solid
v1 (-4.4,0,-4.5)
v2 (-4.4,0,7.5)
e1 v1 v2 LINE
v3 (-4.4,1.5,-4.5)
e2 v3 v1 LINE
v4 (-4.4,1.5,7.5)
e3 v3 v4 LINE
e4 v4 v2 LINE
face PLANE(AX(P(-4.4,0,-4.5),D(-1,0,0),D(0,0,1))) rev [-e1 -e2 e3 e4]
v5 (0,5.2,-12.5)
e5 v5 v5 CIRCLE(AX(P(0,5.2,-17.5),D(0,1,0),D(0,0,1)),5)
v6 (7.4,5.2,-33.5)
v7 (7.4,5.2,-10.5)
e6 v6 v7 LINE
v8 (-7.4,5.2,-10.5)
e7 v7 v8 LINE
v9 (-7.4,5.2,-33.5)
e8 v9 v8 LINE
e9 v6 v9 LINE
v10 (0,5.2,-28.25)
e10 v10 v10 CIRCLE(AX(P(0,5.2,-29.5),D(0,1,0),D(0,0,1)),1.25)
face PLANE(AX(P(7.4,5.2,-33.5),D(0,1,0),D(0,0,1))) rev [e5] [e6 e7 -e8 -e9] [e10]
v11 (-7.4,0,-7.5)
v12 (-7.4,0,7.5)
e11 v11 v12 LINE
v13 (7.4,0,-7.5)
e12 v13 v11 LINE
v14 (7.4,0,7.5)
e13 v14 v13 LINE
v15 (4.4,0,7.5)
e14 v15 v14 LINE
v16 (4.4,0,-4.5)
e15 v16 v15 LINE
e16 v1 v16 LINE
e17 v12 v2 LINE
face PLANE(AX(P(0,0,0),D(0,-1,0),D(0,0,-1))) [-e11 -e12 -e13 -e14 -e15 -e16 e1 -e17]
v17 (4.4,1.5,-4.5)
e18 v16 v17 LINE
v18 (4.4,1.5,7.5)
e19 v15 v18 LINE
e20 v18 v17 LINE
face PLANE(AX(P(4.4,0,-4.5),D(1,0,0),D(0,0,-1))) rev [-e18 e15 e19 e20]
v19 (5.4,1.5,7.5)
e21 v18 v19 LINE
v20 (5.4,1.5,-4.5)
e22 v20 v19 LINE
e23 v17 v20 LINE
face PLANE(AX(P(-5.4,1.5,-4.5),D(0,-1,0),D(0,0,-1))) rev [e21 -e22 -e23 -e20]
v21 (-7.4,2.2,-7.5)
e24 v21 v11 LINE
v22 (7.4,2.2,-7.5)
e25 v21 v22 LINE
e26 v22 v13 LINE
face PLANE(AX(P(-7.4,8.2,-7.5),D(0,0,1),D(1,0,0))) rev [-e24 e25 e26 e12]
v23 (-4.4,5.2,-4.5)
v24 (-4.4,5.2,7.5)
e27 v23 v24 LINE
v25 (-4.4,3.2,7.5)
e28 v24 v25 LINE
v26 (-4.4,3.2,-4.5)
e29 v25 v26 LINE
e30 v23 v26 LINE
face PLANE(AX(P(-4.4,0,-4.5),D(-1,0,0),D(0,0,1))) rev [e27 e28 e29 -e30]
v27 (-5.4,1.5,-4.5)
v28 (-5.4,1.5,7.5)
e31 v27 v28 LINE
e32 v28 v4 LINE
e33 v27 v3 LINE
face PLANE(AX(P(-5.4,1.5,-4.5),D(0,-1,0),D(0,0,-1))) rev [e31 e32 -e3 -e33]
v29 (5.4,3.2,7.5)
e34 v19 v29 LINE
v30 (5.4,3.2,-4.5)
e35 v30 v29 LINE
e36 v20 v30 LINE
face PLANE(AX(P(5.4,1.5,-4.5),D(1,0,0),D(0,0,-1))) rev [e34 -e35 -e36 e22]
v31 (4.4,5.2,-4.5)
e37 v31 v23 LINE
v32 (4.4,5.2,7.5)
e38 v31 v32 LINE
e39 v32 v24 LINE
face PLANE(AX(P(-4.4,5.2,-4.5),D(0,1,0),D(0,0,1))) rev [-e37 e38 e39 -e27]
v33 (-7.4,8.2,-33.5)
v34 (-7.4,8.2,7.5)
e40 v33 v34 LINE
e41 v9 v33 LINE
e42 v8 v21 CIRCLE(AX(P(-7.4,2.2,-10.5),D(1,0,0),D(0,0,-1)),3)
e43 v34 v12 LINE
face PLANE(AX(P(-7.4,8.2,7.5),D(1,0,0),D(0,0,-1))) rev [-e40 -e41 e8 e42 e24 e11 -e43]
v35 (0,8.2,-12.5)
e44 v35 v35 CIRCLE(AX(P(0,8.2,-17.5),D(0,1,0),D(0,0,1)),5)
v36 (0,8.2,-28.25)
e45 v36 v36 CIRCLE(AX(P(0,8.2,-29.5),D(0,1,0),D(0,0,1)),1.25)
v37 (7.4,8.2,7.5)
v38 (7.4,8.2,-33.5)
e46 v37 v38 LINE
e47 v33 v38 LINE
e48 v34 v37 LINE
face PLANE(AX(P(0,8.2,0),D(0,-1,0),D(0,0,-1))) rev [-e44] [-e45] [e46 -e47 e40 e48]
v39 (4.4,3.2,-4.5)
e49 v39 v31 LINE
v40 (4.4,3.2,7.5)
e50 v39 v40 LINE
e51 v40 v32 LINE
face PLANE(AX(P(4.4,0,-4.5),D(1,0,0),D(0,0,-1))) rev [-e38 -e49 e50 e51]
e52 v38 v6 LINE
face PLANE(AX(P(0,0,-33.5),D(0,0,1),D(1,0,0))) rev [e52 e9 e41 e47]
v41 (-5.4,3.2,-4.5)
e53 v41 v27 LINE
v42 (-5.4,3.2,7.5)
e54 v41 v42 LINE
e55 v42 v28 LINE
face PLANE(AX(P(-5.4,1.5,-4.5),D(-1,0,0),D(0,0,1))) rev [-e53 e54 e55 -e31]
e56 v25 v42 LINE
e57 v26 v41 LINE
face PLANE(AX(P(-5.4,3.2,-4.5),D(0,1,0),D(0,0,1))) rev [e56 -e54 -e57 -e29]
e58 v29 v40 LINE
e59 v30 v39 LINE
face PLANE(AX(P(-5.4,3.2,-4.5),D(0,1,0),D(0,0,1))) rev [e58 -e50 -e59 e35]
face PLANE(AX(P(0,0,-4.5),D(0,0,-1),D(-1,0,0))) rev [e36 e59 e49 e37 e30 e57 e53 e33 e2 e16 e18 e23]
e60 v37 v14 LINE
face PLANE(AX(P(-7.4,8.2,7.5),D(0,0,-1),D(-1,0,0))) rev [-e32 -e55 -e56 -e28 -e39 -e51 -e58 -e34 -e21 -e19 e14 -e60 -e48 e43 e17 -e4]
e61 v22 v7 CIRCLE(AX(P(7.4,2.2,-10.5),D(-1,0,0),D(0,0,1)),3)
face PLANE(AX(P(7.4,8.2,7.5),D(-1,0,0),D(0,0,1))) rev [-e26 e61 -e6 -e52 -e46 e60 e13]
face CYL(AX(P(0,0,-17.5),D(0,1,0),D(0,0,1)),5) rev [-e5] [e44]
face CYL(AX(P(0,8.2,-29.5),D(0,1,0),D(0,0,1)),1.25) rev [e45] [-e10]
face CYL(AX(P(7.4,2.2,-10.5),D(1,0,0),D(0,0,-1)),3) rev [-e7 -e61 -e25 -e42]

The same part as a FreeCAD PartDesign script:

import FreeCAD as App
import Part
import Sketcher


def edges_at(feature, points):
    """Names of the edges that pass closest to the given points."""
    edges = feature.Shape.Edges
    near = lambda p: min(range(len(edges)), key=lambda i: edges[i].distToShape(Part.Vertex(*p))[0])
    return sorted({f"Edge{near(p) + 1}" for p in points})


def add_polygon(sketch, points):
    """Adds a closed chain of lines whose ends are joined by coincident constraints."""
    first, n = sketch.GeometryCount, len(points)
    for a, b in zip(points, points[1:] + points[:1]):
        sketch.addGeometry(Part.LineSegment(App.Vector(*a, 0), App.Vector(*b, 0)), False)
    for i in range(n):
        sketch.addConstraint(Sketcher.Constraint("Coincident", first + i, 2, first + (i + 1) % n, 1))

doc = App.newDocument("Part")
body = doc.addObject("PartDesign::Body", "Body")

sketch1 = body.newObject("Sketcher::SketchObject", "Sketch")
sketch1.AttachmentSupport = (doc.getObject("XZ_Plane"), [""])
sketch1.MapMode = "FlatFace"
add_polygon(sketch1, [(-7.4, -7.5), (-7.4, 7.5), (7.4, 7.5), (7.4, -7.5)])
sketch1.addConstraint(Sketcher.Constraint("Vertical", 0))
sketch1.addConstraint(Sketcher.Constraint("Horizontal", 1))
sketch1.addConstraint(Sketcher.Constraint("Vertical", 2))
sketch1.addConstraint(Sketcher.Constraint("Horizontal", 3))
sketch1.addConstraint(Sketcher.Constraint("Symmetric", 0, 2, 2, 2, -1, 1))
sketch1.addConstraint(Sketcher.Constraint("DistanceY", 0, 1, 0, 2, 15.0))
sketch1.addConstraint(Sketcher.Constraint("DistanceX", 1, 1, 1, 2, 14.8))
pad1 = body.newObject("PartDesign::Pad", "Pad")
pad1.Profile = sketch1
pad1.Length = 8.2
pad1.Reversed = True

sketch2 = body.newObject("Sketcher::SketchObject", "Sketch001")
sketch2.AttachmentSupport = (doc.getObject("XY_Plane"), [""])
sketch2.MapMode = "FlatFace"
sketch2.AttachmentOffset = App.Placement(App.Vector(0, 0, 7.5), App.Rotation())
add_polygon(sketch2, [(-4.4, 5.2), (-4.4, 0), (4.4, 0), (4.4, 5.2)])
sketch2.addConstraint(Sketcher.Constraint("Vertical", 0))
sketch2.addConstraint(Sketcher.Constraint("Horizontal", 1))
sketch2.addConstraint(Sketcher.Constraint("Vertical", 2))
sketch2.addConstraint(Sketcher.Constraint("Horizontal", 3))
sketch2.addConstraint(Sketcher.Constraint("Symmetric", 0, 2, 1, 2, -1, 1))
sketch2.addConstraint(Sketcher.Constraint("DistanceX", 1, 1, 1, 2, 8.8))
sketch2.addConstraint(Sketcher.Constraint("DistanceY", 0, 2, 0, 1, 5.2))
pocket1 = body.newObject("PartDesign::Pocket", "Pocket")
pocket1.Profile = sketch2
pocket1.Length = 12

sketch3 = body.newObject("Sketcher::SketchObject", "Sketch002")
sketch3.AttachmentSupport = (doc.getObject("XY_Plane"), [""])
sketch3.MapMode = "FlatFace"
sketch3.AttachmentOffset = App.Placement(App.Vector(0, 0, 7.5), App.Rotation())
add_polygon(sketch3, [(-5.4, 3.2), (-5.4, 1.5), (5.4, 1.5), (5.4, 3.2)])
sketch3.addConstraint(Sketcher.Constraint("Vertical", 0))
sketch3.addConstraint(Sketcher.Constraint("Horizontal", 1))
sketch3.addConstraint(Sketcher.Constraint("Vertical", 2))
sketch3.addConstraint(Sketcher.Constraint("Horizontal", 3))
sketch3.addConstraint(Sketcher.Constraint("DistanceX", 1, 1, 1, 2, 10.8))
sketch3.addConstraint(Sketcher.Constraint("DistanceY", 0, 2, 0, 1, 1.7))
sketch3.addConstraint(Sketcher.Constraint("DistanceX", 0, 2, -1, 1, 5.4))
sketch3.addConstraint(Sketcher.Constraint("DistanceY", -1, 1, 0, 2, 1.5))
pocket2 = body.newObject("PartDesign::Pocket", "Pocket001")
pocket2.Profile = sketch3
pocket2.Length = 12

sketch4 = body.newObject("Sketcher::SketchObject", "Sketch003")
sketch4.AttachmentSupport = (doc.getObject("XY_Plane"), [""])
sketch4.MapMode = "FlatFace"
sketch4.AttachmentOffset = App.Placement(App.Vector(0, 0, -7.5), App.Rotation())
add_polygon(sketch4, [(7.4, 8.2), (7.4, 5.2), (-7.4, 5.2), (-7.4, 8.2)])
sketch4.addConstraint(Sketcher.Constraint("Vertical", 0))
sketch4.addConstraint(Sketcher.Constraint("Horizontal", 1))
sketch4.addConstraint(Sketcher.Constraint("Vertical", 2))
sketch4.addConstraint(Sketcher.Constraint("Horizontal", 3))
sketch4.addConstraint(Sketcher.Constraint("DistanceY", 0, 2, 0, 1, 3.0))
sketch4.addConstraint(Sketcher.Constraint("DistanceX", 1, 2, 1, 1, 14.8))
sketch4.addConstraint(Sketcher.Constraint("DistanceX", -1, 1, 0, 2, 7.4))
sketch4.addConstraint(Sketcher.Constraint("DistanceY", -1, 1, 0, 2, 5.2))
pad2 = body.newObject("PartDesign::Pad", "Pad001")
pad2.Profile = sketch4
pad2.Length = 26
pad2.Reversed = True

sketch5 = body.newObject("Sketcher::SketchObject", "Sketch004")
sketch5.AttachmentSupport = (doc.getObject("XZ_Plane"), [""])
sketch5.MapMode = "FlatFace"
sketch5.AttachmentOffset = App.Placement(App.Vector(0, 0, -8.2), App.Rotation())
sketch5.addGeometry(Part.Circle(App.Vector(0, -17.5, 0), App.Vector(0, 0, 1), 5), False)
sketch5.addConstraint(Sketcher.Constraint("PointOnObject", 0, 3, -2))
sketch5.addConstraint(Sketcher.Constraint("Diameter", 0, 10.0))
sketch5.addConstraint(Sketcher.Constraint("DistanceY", 0, 3, -1, 1, 17.5))
pocket3 = body.newObject("PartDesign::Pocket", "Pocket002")
pocket3.Profile = sketch5
pocket3.Type = "ThroughAll"
pocket3.Reversed = True

sketch6 = body.newObject("Sketcher::SketchObject", "Sketch005")
sketch6.AttachmentSupport = (doc.getObject("XZ_Plane"), [""])
sketch6.MapMode = "FlatFace"
sketch6.AttachmentOffset = App.Placement(App.Vector(0, 0, -8.2), App.Rotation())
sketch6.addGeometry(Part.Circle(App.Vector(0, -29.5, 0), App.Vector(0, 0, 1), 1.25), False)
sketch6.addConstraint(Sketcher.Constraint("PointOnObject", 0, 3, -2))
sketch6.addConstraint(Sketcher.Constraint("Diameter", 0, 2.5))
sketch6.addConstraint(Sketcher.Constraint("DistanceY", 0, 3, -1, 1, 29.5))
doc.recompute()
hole = body.newObject("PartDesign::Hole", "Hole")
hole.Profile = sketch6
hole.ThreadType = "None"
hole.Diameter = 2.5
hole.DepthType = "Dimension"
hole.Depth = 7.5
hole.DrillPoint = "Angled"
hole.DrillPointAngle = 118
hole.Reversed = True
doc.recompute()

fillet = body.newObject("PartDesign::Fillet", "Fillet")
fillet.Base = (hole, edges_at(hole, [(0, 5.2, -7.5)]))
fillet.Radius = 3

doc.recompute()
